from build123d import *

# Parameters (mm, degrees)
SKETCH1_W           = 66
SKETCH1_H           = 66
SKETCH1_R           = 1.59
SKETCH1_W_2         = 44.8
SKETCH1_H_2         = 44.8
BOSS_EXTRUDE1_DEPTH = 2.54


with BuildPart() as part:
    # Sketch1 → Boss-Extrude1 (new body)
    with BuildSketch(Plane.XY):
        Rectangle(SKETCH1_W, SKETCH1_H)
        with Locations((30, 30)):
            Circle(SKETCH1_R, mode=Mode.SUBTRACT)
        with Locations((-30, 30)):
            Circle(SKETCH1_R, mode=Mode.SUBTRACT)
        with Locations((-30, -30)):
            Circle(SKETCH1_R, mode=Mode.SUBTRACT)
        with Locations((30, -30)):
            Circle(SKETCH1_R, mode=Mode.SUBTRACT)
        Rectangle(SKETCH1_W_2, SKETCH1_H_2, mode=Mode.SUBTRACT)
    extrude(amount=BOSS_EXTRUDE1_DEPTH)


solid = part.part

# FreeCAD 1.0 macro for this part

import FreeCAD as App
import Part
import Sketcher

V = App.Vector


def add_polygon(sketch, points):
    """Adds a closed chain of lines whose ends are joined by coincident constraints."""
    first, n = sketch.GeometryCount, len(points)
    for a, b in zip(points, points[1:] + points[:1]):
        sketch.addGeometry(Part.LineSegment(App.Vector(*a, 0), App.Vector(*b, 0)), False)
    for i in range(n):
        sketch.addConstraint(Sketcher.Constraint("Coincident", first + i, 2, first + (i + 1) % n, 1))

doc = App.newDocument("Part")
params = doc.addObject("Spreadsheet::Sheet", "Params")
for row, (alias, value) in enumerate([
    ("sketch1_diameter", "3.18 mm"),
    ("sketch1_width", "66 mm"),
    ("sketch1_width2", "44.8 mm"),
    ("pad1_length", "2.54 mm"),
], start=1):
    params.set(f"A{row}", alias)
    params.set(f"B{row}", "=" + value)
    params.setAlias(f"B{row}", alias)

body = doc.addObject("PartDesign::Body", "Body")

sketch1 = doc.addObject("Sketcher::SketchObject", "Sketch")
body.addObject(sketch1)
sketch1.AttachmentSupport = (doc.XY_Plane, [""])
sketch1.MapMode = "FlatFace"
add_polygon(sketch1, [(-33, 33), (-33, -33), (33, -33), (33, 33)])
sketch1.addGeometry(Part.Circle(V(-30, -30, 0), V(0, 0, 1), 1.59), False)
sketch1.addGeometry(Part.Circle(V(30, -30, 0), V(0, 0, 1), 1.59), False)
sketch1.addGeometry(Part.Circle(V(-30, 30, 0), V(0, 0, 1), 1.59), False)
add_polygon(sketch1, [(22.4, -22.4), (-22.4, -22.4), (-22.4, 22.4), (22.4, 22.4)])
sketch1.addGeometry(Part.Circle(V(30, 30, 0), V(0, 0, 1), 1.59), False)
sketch1.addConstraint([
    Sketcher.Constraint("Vertical", 0),
    Sketcher.Constraint("Horizontal", 1),
    Sketcher.Constraint("Vertical", 2),
    Sketcher.Constraint("Horizontal", 3),
    Sketcher.Constraint("Horizontal", 7),
    Sketcher.Constraint("Vertical", 8),
    Sketcher.Constraint("Horizontal", 9),
    Sketcher.Constraint("Vertical", 10),
    Sketcher.Constraint("Equal", 4, 5),
    Sketcher.Constraint("Equal", 5, 6),
    Sketcher.Constraint("Equal", 6, 11),
    Sketcher.Constraint("Symmetric", 5, 3, 6, 3, -1, 1),
    Sketcher.Constraint("Symmetric", 4, 3, 11, 3, -1, 1),
    Sketcher.Constraint("Symmetric", 0, 2, 2, 2, -1, 1),
    Sketcher.Constraint("Symmetric", 7, 2, 9, 2, -1, 1),
    Sketcher.Constraint("Symmetric", 4, 3, 5, 3, -2),
    Sketcher.Constraint("Equal", 3, 0),
    Sketcher.Constraint("Equal", 9, 8),
    Sketcher.Constraint("Diameter", 4, 3.18),
    Sketcher.Constraint("DistanceX", 1, 1, 1, 2, 66.0),
    Sketcher.Constraint("DistanceX", 7, 2, 7, 1, 44.8),
    Sketcher.Constraint("DistanceX", 4, 3, -1, 1, 30.0),
    Sketcher.Constraint("DistanceY", 4, 3, -1, 1, 30.0),
])
sketch1.setExpression("Constraints[26]", "Params.sketch1_diameter")
sketch1.setExpression("Constraints[27]", "Params.sketch1_width")
sketch1.setExpression("Constraints[28]", "Params.sketch1_width2")
pad1 = doc.addObject("PartDesign::Pad", "Pad")
body.addObject(pad1)
pad1.Profile = sketch1
pad1.setExpression("Length", "Params.pad1_length")

doc.recompute()
